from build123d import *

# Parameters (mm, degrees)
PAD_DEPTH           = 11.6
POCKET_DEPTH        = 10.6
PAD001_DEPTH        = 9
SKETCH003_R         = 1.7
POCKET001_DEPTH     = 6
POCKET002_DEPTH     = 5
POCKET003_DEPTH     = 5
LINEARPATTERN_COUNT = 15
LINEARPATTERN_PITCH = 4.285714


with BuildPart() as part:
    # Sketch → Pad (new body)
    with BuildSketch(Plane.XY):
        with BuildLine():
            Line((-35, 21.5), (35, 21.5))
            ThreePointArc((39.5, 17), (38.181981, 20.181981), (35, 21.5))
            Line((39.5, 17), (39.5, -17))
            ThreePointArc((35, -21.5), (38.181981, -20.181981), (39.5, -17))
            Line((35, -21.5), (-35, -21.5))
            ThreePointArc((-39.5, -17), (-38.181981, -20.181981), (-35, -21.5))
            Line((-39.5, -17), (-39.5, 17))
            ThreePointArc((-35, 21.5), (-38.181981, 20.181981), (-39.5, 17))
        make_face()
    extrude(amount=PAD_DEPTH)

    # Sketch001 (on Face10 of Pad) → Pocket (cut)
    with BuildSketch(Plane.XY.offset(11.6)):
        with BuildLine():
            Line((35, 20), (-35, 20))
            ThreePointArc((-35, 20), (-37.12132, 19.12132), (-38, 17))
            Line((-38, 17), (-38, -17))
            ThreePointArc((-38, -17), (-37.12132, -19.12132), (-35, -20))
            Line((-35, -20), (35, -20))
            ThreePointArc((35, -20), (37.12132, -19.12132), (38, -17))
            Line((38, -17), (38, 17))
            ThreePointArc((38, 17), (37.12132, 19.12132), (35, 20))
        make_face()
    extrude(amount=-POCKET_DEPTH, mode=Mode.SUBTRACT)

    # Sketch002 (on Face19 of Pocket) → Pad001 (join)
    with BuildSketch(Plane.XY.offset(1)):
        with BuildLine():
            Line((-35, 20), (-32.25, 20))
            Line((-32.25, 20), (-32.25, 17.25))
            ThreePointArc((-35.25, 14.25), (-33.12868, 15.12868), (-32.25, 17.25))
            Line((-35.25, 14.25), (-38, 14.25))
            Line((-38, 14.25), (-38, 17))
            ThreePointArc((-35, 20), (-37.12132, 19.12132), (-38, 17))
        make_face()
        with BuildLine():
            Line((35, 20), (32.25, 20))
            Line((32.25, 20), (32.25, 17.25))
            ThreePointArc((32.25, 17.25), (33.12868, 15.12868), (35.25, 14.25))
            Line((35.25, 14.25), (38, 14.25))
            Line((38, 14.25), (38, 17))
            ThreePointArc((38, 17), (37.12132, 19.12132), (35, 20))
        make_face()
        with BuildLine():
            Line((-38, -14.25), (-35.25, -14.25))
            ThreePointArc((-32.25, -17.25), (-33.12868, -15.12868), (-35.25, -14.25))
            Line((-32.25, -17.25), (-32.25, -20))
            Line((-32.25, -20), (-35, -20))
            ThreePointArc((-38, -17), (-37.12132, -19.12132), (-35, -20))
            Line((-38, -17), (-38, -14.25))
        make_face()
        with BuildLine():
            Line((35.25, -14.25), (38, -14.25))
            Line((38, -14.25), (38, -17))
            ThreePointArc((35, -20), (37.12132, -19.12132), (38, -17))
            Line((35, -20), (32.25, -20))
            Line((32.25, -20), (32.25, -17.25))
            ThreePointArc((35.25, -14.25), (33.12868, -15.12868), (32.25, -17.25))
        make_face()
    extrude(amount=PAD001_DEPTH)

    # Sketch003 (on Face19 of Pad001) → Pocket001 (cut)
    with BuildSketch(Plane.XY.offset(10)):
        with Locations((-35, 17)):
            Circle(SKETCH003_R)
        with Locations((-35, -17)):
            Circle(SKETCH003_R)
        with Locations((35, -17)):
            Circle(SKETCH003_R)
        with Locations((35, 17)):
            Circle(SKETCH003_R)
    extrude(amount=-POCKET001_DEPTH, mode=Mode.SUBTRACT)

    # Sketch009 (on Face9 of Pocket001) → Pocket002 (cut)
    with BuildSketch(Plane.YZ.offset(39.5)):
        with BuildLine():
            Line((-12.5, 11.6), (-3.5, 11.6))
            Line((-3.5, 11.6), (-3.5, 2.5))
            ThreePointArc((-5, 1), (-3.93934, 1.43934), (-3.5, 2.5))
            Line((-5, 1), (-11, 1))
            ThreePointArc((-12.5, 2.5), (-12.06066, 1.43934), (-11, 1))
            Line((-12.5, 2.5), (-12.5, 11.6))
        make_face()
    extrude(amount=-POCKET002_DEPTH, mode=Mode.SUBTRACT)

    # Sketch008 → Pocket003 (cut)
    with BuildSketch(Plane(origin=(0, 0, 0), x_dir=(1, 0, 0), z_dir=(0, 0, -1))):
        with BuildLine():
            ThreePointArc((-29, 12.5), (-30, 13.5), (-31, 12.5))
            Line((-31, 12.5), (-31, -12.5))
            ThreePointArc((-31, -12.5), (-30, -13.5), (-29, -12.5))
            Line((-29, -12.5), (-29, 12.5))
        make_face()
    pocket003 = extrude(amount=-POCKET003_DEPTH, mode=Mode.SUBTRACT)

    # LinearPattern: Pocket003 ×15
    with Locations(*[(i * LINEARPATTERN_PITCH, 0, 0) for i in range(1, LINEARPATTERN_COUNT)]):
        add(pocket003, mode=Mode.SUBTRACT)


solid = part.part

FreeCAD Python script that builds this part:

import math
import FreeCAD as App
import Part
import Sketcher

doc = App.newDocument("Part")
body = doc.addObject("PartDesign::Body", "Body")

# Sketch on XY plane
sketch1 = body.newObject("Sketcher::SketchObject", "Sketch")
sketch1.AttachmentSupport = (doc.getObject("XY_Plane"), [""])
sketch1.MapMode = "FlatFace"
sketch1.addGeometry([
    Part.LineSegment(App.Vector(35, 21.5, 0), App.Vector(-35, 21.5, 0)),  # 0
    Part.ArcOfCircle(Part.Circle(App.Vector(-35, 17, 0), App.Vector(0, 0, 1), 4.5), math.radians(90), math.radians(180)),  # 1
    Part.LineSegment(App.Vector(-39.5, 17, 0), App.Vector(-39.5, -17, 0)),  # 2
    Part.ArcOfCircle(Part.Circle(App.Vector(-35, -17, 0), App.Vector(0, 0, 1), 4.5), math.radians(180), math.radians(270)),  # 3
    Part.LineSegment(App.Vector(-35, -21.5, 0), App.Vector(35, -21.5, 0)),  # 4
    Part.ArcOfCircle(Part.Circle(App.Vector(35, -17, 0), App.Vector(0, 0, 1), 4.5), math.radians(-90), math.radians(0)),  # 5
    Part.LineSegment(App.Vector(39.5, -17, 0), App.Vector(39.5, 17, 0)),  # 6
    Part.ArcOfCircle(Part.Circle(App.Vector(35, 17, 0), App.Vector(0, 0, 1), 4.5), math.radians(0), math.radians(90)),  # 7
], False)
sketch1.addConstraint([
    Sketcher.Constraint("Tangent", 0, 2, 1, 1),
    Sketcher.Constraint("Tangent", 1, 2, 2, 1),
    Sketcher.Constraint("Tangent", 2, 2, 3, 1),
    Sketcher.Constraint("Tangent", 3, 2, 4, 1),
    Sketcher.Constraint("Tangent", 4, 2, 5, 1),
    Sketcher.Constraint("Tangent", 5, 2, 6, 1),
    Sketcher.Constraint("Tangent", 6, 2, 7, 1),
    Sketcher.Constraint("Tangent", 7, 2, 0, 1),
    Sketcher.Constraint("Horizontal", 0),
    Sketcher.Constraint("Vertical", 2),
    Sketcher.Constraint("Horizontal", 4),
    Sketcher.Constraint("Vertical", 6),
    Sketcher.Constraint("Equal", 1, 3),
    Sketcher.Constraint("Equal", 3, 5),
    Sketcher.Constraint("Equal", 5, 7),
    Sketcher.Constraint("Symmetric", 1, 3, 5, 3, -1, 1),
    Sketcher.Constraint("Radius", 1, 4.499998),
    Sketcher.Constraint("DistanceX", 0, 2, 0, 1, 70.0),
    Sketcher.Constraint("DistanceY", 2, 2, 2, 1, 34.0),
])
pad1 = body.newObject("PartDesign::Pad", "Pad")
pad1.Profile = sketch1
pad1.Length = 11.6

# Sketch on XY plane
sketch2 = body.newObject("Sketcher::SketchObject", "Sketch001")
sketch2.AttachmentSupport = (doc.getObject("XY_Plane"), [""])
sketch2.MapMode = "FlatFace"
sketch2.AttachmentOffset = App.Placement(App.Vector(0, 0, 11.6), App.Rotation())
sketch2.addGeometry([
    Part.LineSegment(App.Vector(35, 20, 0), App.Vector(-35, 20, 0)),  # 0
    Part.ArcOfCircle(Part.Circle(App.Vector(-35, 17, 0), App.Vector(0, 0, 1), 3), math.radians(90), math.radians(180)),  # 1
    Part.LineSegment(App.Vector(-38, 17, 0), App.Vector(-38, -17, 0)),  # 2
    Part.ArcOfCircle(Part.Circle(App.Vector(-35, -17, 0), App.Vector(0, 0, 1), 3), math.radians(-180), math.radians(-90)),  # 3
    Part.LineSegment(App.Vector(-35, -20, 0), App.Vector(35, -20, 0)),  # 4
    Part.ArcOfCircle(Part.Circle(App.Vector(35, -17, 0), App.Vector(0, 0, 1), 3), math.radians(-90), math.radians(0)),  # 5
    Part.LineSegment(App.Vector(38, -17, 0), App.Vector(38, 17, 0)),  # 6
    Part.ArcOfCircle(Part.Circle(App.Vector(35, 17, 0), App.Vector(0, 0, 1), 3), math.radians(0), math.radians(90)),  # 7
], False)
sketch2.addConstraint([
    Sketcher.Constraint("Tangent", 0, 2, 1, 1),
    Sketcher.Constraint("Tangent", 1, 2, 2, 1),
    Sketcher.Constraint("Tangent", 2, 2, 3, 1),
    Sketcher.Constraint("Tangent", 3, 2, 4, 1),
    Sketcher.Constraint("Tangent", 4, 2, 5, 1),
    Sketcher.Constraint("Tangent", 5, 2, 6, 1),
    Sketcher.Constraint("Tangent", 6, 2, 7, 1),
    Sketcher.Constraint("Tangent", 7, 2, 0, 1),
    Sketcher.Constraint("Horizontal", 0),
    Sketcher.Constraint("Vertical", 2),
    Sketcher.Constraint("Horizontal", 4),
    Sketcher.Constraint("Vertical", 6),
    Sketcher.Constraint("Equal", 1, 3),
    Sketcher.Constraint("Equal", 3, 5),
    Sketcher.Constraint("Equal", 5, 7),
    Sketcher.Constraint("Symmetric", 1, 3, 5, 3, -1, 1),
    Sketcher.Constraint("Radius", 1, 3.000001),
    Sketcher.Constraint("DistanceX", 0, 2, 0, 1, 70.0),
    Sketcher.Constraint("DistanceY", 2, 2, 2, 1, 34.0),
])
pocket1 = body.newObject("PartDesign::Pocket", "Pocket")
pocket1.Profile = sketch2
pocket1.Length = 10.6

# Sketch on XY plane
sketch3 = body.newObject("Sketcher::SketchObject", "Sketch002")
sketch3.AttachmentSupport = (doc.getObject("XY_Plane"), [""])
sketch3.MapMode = "FlatFace"
sketch3.AttachmentOffset = App.Placement(App.Vector(0, 0, 1), App.Rotation())
sketch3.addGeometry([
    Part.LineSegment(App.Vector(-32.2, 20, 0), App.Vector(-35, 20, 0)),  # 0
    Part.ArcOfCircle(Part.Circle(App.Vector(-35, 17, 0), App.Vector(0, 0, 1), 3), math.radians(90), math.radians(180)),  # 1
    Part.LineSegment(App.Vector(-38, 17, 0), App.Vector(-38, 14.2, 0)),  # 2
    Part.LineSegment(App.Vector(-38, 14.2, 0), App.Vector(-35.2, 14.2, 0)),  # 3
    Part.ArcOfCircle(Part.Circle(App.Vector(-35.3, 17.3, 0), App.Vector(0, 0, 1), 3), math.radians(-90), math.radians(0)),  # 4
    Part.LineSegment(App.Vector(-32.2, 17.2, 0), App.Vector(-32.2, 20, 0)),  # 5
    Part.LineSegment(App.Vector(35, 20, 0), App.Vector(32.2, 20, 0)),  # 6
    Part.LineSegment(App.Vector(32.2, 20, 0), App.Vector(32.2, 17.2, 0)),  # 7
    Part.ArcOfCircle(Part.Circle(App.Vector(35.3, 17.3, 0), App.Vector(0, 0, 1), 3), math.radians(-180), math.radians(-90)),  # 8
    Part.LineSegment(App.Vector(35.2, 14.2, 0), App.Vector(38, 14.2, 0)),  # 9
    Part.LineSegment(App.Vector(38, 14.2, 0), App.Vector(38, 17, 0)),  # 10
    Part.ArcOfCircle(Part.Circle(App.Vector(35, 17, 0), App.Vector(0, 0, 1), 3), math.radians(0), math.radians(90)),  # 11
    Part.LineSegment(App.Vector(-35.2, -14.2, 0), App.Vector(-38, -14.2, 0)),  # 12
    Part.LineSegment(App.Vector(-38, -14.2, 0), App.Vector(-38, -17, 0)),  # 13
    Part.ArcOfCircle(Part.Circle(App.Vector(-35, -17, 0), App.Vector(0, 0, 1), 3), math.radians(-180), math.radians(-90)),  # 14
    Part.LineSegment(App.Vector(-35, -20, 0), App.Vector(-32.2, -20, 0)),  # 15
    Part.LineSegment(App.Vector(-32.2, -20, 0), App.Vector(-32.2, -17.2, 0)),  # 16
    Part.ArcOfCircle(Part.Circle(App.Vector(-35.3, -17.3, 0), App.Vector(0, 0, 1), 3), math.radians(0), math.radians(90)),  # 17
    Part.LineSegment(App.Vector(38, -14.2, 0), App.Vector(35.2, -14.2, 0)),  # 18
    Part.ArcOfCircle(Part.Circle(App.Vector(35.3, -17.3, 0), App.Vector(0, 0, 1), 3), math.radians(90), math.radians(180)),  # 19
    Part.LineSegment(App.Vector(32.2, -17.2, 0), App.Vector(32.2, -20, 0)),  # 20
    Part.LineSegment(App.Vector(32.2, -20, 0), App.Vector(35, -20, 0)),  # 21
    Part.ArcOfCircle(Part.Circle(App.Vector(35, -17, 0), App.Vector(0, 0, 1), 3), math.radians(-90), math.radians(0)),  # 22
    Part.LineSegment(App.Vector(38, -17, 0), App.Vector(38, -14.2, 0)),  # 23
], False)
sketch3.addConstraint([
    Sketcher.Constraint("Tangent", 0, 2, 1, 1),
    Sketcher.Constraint("Tangent", 1, 2, 2, 1),
    Sketcher.Constraint("Coincident", 2, 2, 3, 1),
    Sketcher.Constraint("Tangent", 3, 2, 4, 1),
    Sketcher.Constraint("Tangent", 4, 2, 5, 1),
    Sketcher.Constraint("Coincident", 5, 2, 0, 1),
    Sketcher.Constraint("Coincident", 6, 2, 7, 1),
    Sketcher.Constraint("Tangent", 7, 2, 8, 1),
    Sketcher.Constraint("Tangent", 8, 2, 9, 1),
    Sketcher.Constraint("Coincident", 9, 2, 10, 1),
    Sketcher.Constraint("Tangent", 10, 2, 11, 1),
    Sketcher.Constraint("Tangent", 11, 2, 6, 1),
    Sketcher.Constraint("Coincident", 12, 2, 13, 1),
    Sketcher.Constraint("Tangent", 13, 2, 14, 1),
    Sketcher.Constraint("Tangent", 14, 2, 15, 1),
    Sketcher.Constraint("Coincident", 15, 2, 16, 1),
    Sketcher.Constraint("Tangent", 16, 2, 17, 1),
    Sketcher.Constraint("Tangent", 17, 2, 12, 1),
    Sketcher.Constraint("Tangent", 18, 2, 19, 1),
    Sketcher.Constraint("Tangent", 19, 2, 20, 1),
    Sketcher.Constraint("Coincident", 20, 2, 21, 1),
    Sketcher.Constraint("Tangent", 21, 2, 22, 1),
    Sketcher.Constraint("Tangent", 22, 2, 23, 1),
    Sketcher.Constraint("Coincident", 23, 2, 18, 1),
    Sketcher.Constraint("Horizontal", 0),
    Sketcher.Constraint("Vertical", 2),
    Sketcher.Constraint("Horizontal", 3),
    Sketcher.Constraint("Vertical", 5),
    Sketcher.Constraint("Horizontal", 6),
    Sketcher.Constraint("Vertical", 7),
    Sketcher.Constraint("Horizontal", 9),
    Sketcher.Constraint("Vertical", 10),
    Sketcher.Constraint("Horizontal", 12),
    Sketcher.Constraint("Vertical", 13),
    Sketcher.Constraint("Horizontal", 15),
    Sketcher.Constraint("Vertical", 16),
    Sketcher.Constraint("Horizontal", 18),
    Sketcher.Constraint("Vertical", 20),
    Sketcher.Constraint("Horizontal", 21),
    Sketcher.Constraint("Vertical", 23),
    Sketcher.Constraint("Equal", 1, 4),
    Sketcher.Constraint("Equal", 4, 8),
    Sketcher.Constraint("Equal", 8, 11),
    Sketcher.Constraint("Equal", 11, 14),
    Sketcher.Constraint("Equal", 14, 17),
    Sketcher.Constraint("Equal", 17, 19),
    Sketcher.Constraint("Equal", 19, 22),
    Sketcher.Constraint("Symmetric", 11, 3, 14, 3, -1, 1),
    Sketcher.Constraint("Symmetric", 8, 3, 17, 3, -1, 1),
    Sketcher.Constraint("Symmetric", 4, 3, 19, 3, -1, 1),
    Sketcher.Constraint("Symmetric", 1, 3, 22, 3, -1, 1),
    Sketcher.Constraint("Symmetric", 4, 3, 8, 3, -2),
    Sketcher.Constraint("Symmetric", 1, 3, 11, 3, -2),
    Sketcher.Constraint("Equal", 21, 2),
    Sketcher.Constraint("Radius", 1, 3.000001),
    Sketcher.Constraint("DistanceX", 1, 3, -1, 1, 34.999999),
    Sketcher.Constraint("DistanceY", -1, 1, 1, 3, 16.999999),
    Sketcher.Constraint("DistanceX", 0, 2, 0, 1, 2.75),
])
pad2 = body.newObject("PartDesign::Pad", "Pad001")
pad2.Profile = sketch3
pad2.Length = 9

# Sketch on XY plane
sketch4 = body.newObject("Sketcher::SketchObject", "Sketch003")
sketch4.AttachmentSupport = (doc.getObject("XY_Plane"), [""])
sketch4.MapMode = "FlatFace"
sketch4.AttachmentOffset = App.Placement(App.Vector(0, 0, 10), App.Rotation())
sketch4.addGeometry([
    Part.Circle(App.Vector(-35, 17, 0), App.Vector(0, 0, 1), 1.7),
    Part.Circle(App.Vector(-35, -17, 0), App.Vector(0, 0, 1), 1.7),
    Part.Circle(App.Vector(35, -17, 0), App.Vector(0, 0, 1), 1.7),
    Part.Circle(App.Vector(35, 17, 0), App.Vector(0, 0, 1), 1.7),
], False)
sketch4.addConstraint([
    Sketcher.Constraint("Equal", 0, 1),
    Sketcher.Constraint("Equal", 1, 2),
    Sketcher.Constraint("Equal", 2, 3),
    Sketcher.Constraint("Symmetric", 0, 3, 2, 3, -1, 1),
    Sketcher.Constraint("Symmetric", 1, 3, 3, 3, -1, 1),
    Sketcher.Constraint("Symmetric", 1, 3, 2, 3, -2),
    Sketcher.Constraint("Diameter", 0, 3.4),
    Sketcher.Constraint("DistanceX", 0, 3, -1, 1, 35.0),
    Sketcher.Constraint("DistanceY", -1, 1, 0, 3, 17.0),
])
pocket2 = body.newObject("PartDesign::Pocket", "Pocket001")
pocket2.Profile = sketch4
pocket2.Length = 6

# Sketch on YZ plane
sketch5 = body.newObject("Sketcher::SketchObject", "Sketch004")
sketch5.AttachmentSupport = (doc.getObject("YZ_Plane"), [""])
sketch5.MapMode = "FlatFace"
sketch5.AttachmentOffset = App.Placement(App.Vector(0, 0, 39.5), App.Rotation())
sketch5.addGeometry([
    Part.LineSegment(App.Vector(-3.5, 11.6, 0), App.Vector(-12.5, 11.6, 0)),  # 0
    Part.LineSegment(App.Vector(-12.5, 11.6, 0), App.Vector(-12.5, 2.5, 0)),  # 1
    Part.ArcOfCircle(Part.Circle(App.Vector(-11, 2.5, 0), App.Vector(0, 0, 1), 1.5), math.radians(-180), math.radians(-90)),  # 2
    Part.LineSegment(App.Vector(-11, 1, 0), App.Vector(-5, 1, 0)),  # 3
    Part.ArcOfCircle(Part.Circle(App.Vector(-5, 2.5, 0), App.Vector(0, 0, 1), 1.5), math.radians(-90), math.radians(0)),  # 4
    Part.LineSegment(App.Vector(-3.5, 2.5, 0), App.Vector(-3.5, 11.6, 0)),  # 5
], False)
sketch5.addConstraint([
    Sketcher.Constraint("Coincident", 0, 2, 1, 1),
    Sketcher.Constraint("Tangent", 1, 2, 2, 1),
    Sketcher.Constraint("Tangent", 2, 2, 3, 1),
    Sketcher.Constraint("Tangent", 3, 2, 4, 1),
    Sketcher.Constraint("Tangent", 4, 2, 5, 1),
    Sketcher.Constraint("Coincident", 5, 2, 0, 1),
    Sketcher.Constraint("Horizontal", 0),
    Sketcher.Constraint("Vertical", 1),
    Sketcher.Constraint("Horizontal", 3),
    Sketcher.Constraint("Vertical", 5),
    Sketcher.Constraint("Equal", 2, 4),
    Sketcher.Constraint("Radius", 2, 1.500001),
    Sketcher.Constraint("DistanceX", 0, 2, 0, 1, 9.0),
    Sketcher.Constraint("DistanceY", 1, 2, 1, 1, 9.1),
    Sketcher.Constraint("DistanceX", 2, 3, -1, 1, 10.999999),
    Sketcher.Constraint("DistanceY", -1, 1, 2, 2, 1.0),
])
pocket3 = body.newObject("PartDesign::Pocket", "Pocket002")
pocket3.Profile = sketch5
pocket3.Length = 5

# Sketch on XY plane
sketch6 = body.newObject("Sketcher::SketchObject", "Sketch005")
sketch6.AttachmentSupport = (doc.getObject("XY_Plane"), [""])
sketch6.MapMode = "FlatFace"
sketch6.addGeometry([
    Part.ArcOfCircle(Part.Circle(App.Vector(-30, -12.5, 0), App.Vector(0, 0, 1), 1), math.radians(180), math.radians(360)),
    Part.LineSegment(App.Vector(-31, -12.5, 0), App.Vector(-31, 12.5, 0)),
    Part.ArcOfCircle(Part.Circle(App.Vector(-30, 12.5, 0), App.Vector(0, 0, 1), 1), math.radians(0), math.radians(180)),
    Part.LineSegment(App.Vector(-29, 12.5, 0), App.Vector(-29, -12.5, 0)),
], False)
sketch6.addConstraint([
    Sketcher.Constraint("Tangent", 0, 1, 1, 1),
    Sketcher.Constraint("Tangent", 1, 2, 2, 2),
    Sketcher.Constraint("Tangent", 2, 1, 3, 1),
    Sketcher.Constraint("Tangent", 3, 2, 0, 2),
    Sketcher.Constraint("Vertical", 1),
    Sketcher.Constraint("Vertical", 3),
    Sketcher.Constraint("Radius", 0, 1.0),
    Sketcher.Constraint("DistanceY", 1, 1, 1, 2, 25.0),
    Sketcher.Constraint("DistanceX", 0, 3, -1, 1, 30.0),
    Sketcher.Constraint("DistanceY", 0, 3, -1, 1, 12.5),
])
pocket4 = body.newObject("PartDesign::Pocket", "Pocket003")
pocket4.Profile = sketch6
pocket4.Length = 5
pocket4.Reversed = True
doc.recompute()

linearpattern = body.newObject("PartDesign::LinearPattern", "LinearPattern")
linearpattern.Originals = [pocket4]
linearpattern.Direction = (doc.getObject("X_Axis"), [""])
linearpattern.Mode = "offset"
linearpattern.Offset = 4.285714
linearpattern.Occurrences = 15
body.Tip = linearpattern

doc.recompute()
